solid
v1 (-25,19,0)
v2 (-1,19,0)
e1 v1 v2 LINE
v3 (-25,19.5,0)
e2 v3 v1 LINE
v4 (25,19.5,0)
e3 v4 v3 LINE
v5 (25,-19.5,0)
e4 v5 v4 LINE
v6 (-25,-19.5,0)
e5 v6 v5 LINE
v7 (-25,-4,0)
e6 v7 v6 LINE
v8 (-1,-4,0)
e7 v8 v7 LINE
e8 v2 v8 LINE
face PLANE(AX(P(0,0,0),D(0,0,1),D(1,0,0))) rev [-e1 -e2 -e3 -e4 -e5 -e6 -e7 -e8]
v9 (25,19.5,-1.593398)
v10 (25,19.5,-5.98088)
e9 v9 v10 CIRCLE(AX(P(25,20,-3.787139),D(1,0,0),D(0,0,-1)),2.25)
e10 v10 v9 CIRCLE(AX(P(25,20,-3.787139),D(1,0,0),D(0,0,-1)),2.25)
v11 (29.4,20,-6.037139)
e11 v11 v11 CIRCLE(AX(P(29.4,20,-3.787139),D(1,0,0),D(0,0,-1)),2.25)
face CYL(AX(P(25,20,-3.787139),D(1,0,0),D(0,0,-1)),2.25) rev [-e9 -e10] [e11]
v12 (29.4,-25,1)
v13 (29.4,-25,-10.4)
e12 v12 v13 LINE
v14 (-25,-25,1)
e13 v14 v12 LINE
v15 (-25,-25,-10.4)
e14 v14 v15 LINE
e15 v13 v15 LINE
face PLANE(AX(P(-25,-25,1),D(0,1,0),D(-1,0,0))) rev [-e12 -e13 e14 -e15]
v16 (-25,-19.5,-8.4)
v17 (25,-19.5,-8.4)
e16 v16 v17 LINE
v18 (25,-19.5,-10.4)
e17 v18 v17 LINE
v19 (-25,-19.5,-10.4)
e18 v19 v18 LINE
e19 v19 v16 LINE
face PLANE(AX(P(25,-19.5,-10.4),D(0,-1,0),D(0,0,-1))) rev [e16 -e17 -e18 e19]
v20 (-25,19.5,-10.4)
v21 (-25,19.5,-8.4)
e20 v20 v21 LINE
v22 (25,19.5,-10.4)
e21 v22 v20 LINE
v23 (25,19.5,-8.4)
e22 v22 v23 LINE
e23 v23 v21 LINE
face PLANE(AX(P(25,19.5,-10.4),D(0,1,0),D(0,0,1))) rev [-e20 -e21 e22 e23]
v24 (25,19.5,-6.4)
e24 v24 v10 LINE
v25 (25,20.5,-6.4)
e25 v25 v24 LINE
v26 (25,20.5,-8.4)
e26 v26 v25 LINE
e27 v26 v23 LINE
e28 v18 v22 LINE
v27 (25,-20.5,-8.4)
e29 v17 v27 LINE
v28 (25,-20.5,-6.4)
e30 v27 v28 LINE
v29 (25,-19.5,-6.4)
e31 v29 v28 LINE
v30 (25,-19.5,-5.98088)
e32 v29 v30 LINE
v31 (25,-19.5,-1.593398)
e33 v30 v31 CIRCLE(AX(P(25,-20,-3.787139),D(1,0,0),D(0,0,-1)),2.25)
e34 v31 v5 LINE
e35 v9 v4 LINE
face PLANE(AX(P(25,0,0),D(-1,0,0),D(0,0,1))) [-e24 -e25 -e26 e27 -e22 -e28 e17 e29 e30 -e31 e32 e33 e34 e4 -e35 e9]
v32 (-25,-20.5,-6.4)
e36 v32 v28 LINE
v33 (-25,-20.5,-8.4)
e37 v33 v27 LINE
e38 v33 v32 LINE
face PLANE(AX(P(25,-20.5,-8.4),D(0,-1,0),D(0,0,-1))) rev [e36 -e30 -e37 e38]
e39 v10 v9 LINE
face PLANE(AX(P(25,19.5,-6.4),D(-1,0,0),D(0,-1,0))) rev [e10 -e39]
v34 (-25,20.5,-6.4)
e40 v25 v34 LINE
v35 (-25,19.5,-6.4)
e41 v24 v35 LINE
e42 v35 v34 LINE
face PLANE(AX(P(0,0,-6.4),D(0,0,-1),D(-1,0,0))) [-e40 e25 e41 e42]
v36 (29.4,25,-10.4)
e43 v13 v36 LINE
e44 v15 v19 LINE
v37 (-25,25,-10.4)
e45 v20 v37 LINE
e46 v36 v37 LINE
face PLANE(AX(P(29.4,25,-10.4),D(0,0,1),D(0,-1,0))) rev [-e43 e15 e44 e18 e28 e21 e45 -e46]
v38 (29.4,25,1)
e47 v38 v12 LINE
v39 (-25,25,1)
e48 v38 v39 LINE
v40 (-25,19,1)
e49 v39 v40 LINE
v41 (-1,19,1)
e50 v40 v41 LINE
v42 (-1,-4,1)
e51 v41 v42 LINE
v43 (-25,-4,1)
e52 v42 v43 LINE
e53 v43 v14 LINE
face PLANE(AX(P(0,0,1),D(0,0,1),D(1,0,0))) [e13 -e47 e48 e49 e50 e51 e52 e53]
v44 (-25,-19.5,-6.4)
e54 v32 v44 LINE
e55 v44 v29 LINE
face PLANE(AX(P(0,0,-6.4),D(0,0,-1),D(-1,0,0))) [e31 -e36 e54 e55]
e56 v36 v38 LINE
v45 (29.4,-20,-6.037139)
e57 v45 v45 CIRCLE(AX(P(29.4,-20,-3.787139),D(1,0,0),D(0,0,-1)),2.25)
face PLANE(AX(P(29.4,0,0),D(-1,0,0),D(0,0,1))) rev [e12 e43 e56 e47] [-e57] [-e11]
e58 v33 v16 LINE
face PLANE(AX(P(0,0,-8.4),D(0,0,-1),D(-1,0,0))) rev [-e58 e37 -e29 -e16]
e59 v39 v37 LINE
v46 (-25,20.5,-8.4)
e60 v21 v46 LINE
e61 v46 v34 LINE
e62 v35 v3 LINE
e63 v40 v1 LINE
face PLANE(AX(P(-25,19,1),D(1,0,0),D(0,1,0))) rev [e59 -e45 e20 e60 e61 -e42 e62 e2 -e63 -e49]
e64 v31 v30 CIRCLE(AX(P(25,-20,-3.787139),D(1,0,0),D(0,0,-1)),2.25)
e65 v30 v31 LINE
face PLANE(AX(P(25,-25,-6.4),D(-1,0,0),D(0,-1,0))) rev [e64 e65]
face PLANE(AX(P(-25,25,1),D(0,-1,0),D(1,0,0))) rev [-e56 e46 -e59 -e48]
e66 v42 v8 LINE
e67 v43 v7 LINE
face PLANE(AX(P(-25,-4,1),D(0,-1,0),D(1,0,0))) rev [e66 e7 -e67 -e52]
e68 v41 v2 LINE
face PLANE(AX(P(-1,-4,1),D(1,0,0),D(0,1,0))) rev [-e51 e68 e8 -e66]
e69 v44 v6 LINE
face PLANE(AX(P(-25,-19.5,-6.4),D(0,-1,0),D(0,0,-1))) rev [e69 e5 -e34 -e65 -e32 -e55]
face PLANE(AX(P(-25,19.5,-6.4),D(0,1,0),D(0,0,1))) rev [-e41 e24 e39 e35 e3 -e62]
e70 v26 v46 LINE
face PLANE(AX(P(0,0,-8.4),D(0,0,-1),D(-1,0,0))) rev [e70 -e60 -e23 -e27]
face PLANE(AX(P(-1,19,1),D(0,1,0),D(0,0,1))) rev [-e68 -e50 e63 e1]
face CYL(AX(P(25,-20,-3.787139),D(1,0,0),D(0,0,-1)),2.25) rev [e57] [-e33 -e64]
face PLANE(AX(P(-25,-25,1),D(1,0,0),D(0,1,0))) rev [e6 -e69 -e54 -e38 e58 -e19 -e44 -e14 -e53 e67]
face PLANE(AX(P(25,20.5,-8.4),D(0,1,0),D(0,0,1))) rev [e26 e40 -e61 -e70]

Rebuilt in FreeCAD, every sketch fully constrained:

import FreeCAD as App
import Part
import Sketcher

V = App.Vector
Q = App.Units.Quantity

doc = App.newDocument("Part")
body = doc.addObject("PartDesign::Body", "Body")

# Sketch on XY plane
sketch1 = body.newObject("Sketcher::SketchObject", "Sketch")
sketch1.AttachmentSupport = (doc.getObject("XY_Plane"), [""])
sketch1.MapMode = "FlatFace"
sketch1.addGeometry([
    Part.LineSegment(V(-1, -4, 0), V(-25, -4, 0)),  # 0
    Part.LineSegment(V(-25, -4, 0), V(-25, -25, 0)),  # 1
    Part.LineSegment(V(-25, -25, 0), V(25, -25, 0)),  # 2
    Part.LineSegment(V(25, -25, 0), V(25, 25, 0)),  # 3
    Part.LineSegment(V(25, 25, 0), V(-25, 25, 0)),  # 4
    Part.LineSegment(V(-25, 25, 0), V(-25, 19, 0)),  # 5
    Part.LineSegment(V(-25, 19, 0), V(-1, 19, 0)),  # 6
    Part.LineSegment(V(-1, 19, 0), V(-1, -4, 0)),  # 7
], False)
sketch1.addConstraint([
    Sketcher.Constraint("Coincident", 0, 2, 1, 1),
    Sketcher.Constraint("Coincident", 1, 2, 2, 1),
    Sketcher.Constraint("Coincident", 2, 2, 3, 1),
    Sketcher.Constraint("Coincident", 3, 2, 4, 1),
    Sketcher.Constraint("Coincident", 4, 2, 5, 1),
    Sketcher.Constraint("Coincident", 5, 2, 6, 1),
    Sketcher.Constraint("Coincident", 6, 2, 7, 1),
    Sketcher.Constraint("Coincident", 7, 2, 0, 1),
    Sketcher.Constraint("Horizontal", 0),
    Sketcher.Constraint("Vertical", 1),
    Sketcher.Constraint("Horizontal", 2),
    Sketcher.Constraint("Vertical", 3),
    Sketcher.Constraint("Horizontal", 4),
    Sketcher.Constraint("Vertical", 5),
    Sketcher.Constraint("Horizontal", 6),
    Sketcher.Constraint("Vertical", 7),
    Sketcher.Constraint("Symmetric", 1, 2, 3, 2, -1, 1),
    Sketcher.Constraint("Vertical", 1, 2, 4, 2),
    Sketcher.Constraint("Equal", 4, 3),
    Sketcher.Constraint("DistanceX", 0, 2, 0, 1, Q("24 mm")),
    Sketcher.Constraint("DistanceX", 2, 1, 2, 2, Q("50 mm")),
    Sketcher.Constraint("DistanceY", 1, 2, 1, 1, Q("21 mm")),
    Sketcher.Constraint("DistanceY", 5, 2, 5, 1, Q("6 mm")),
])
pad1 = body.newObject("PartDesign::Pad", "Pad")
pad1.Profile = sketch1
pad1.Length = 1

# Sketch on YZ plane
sketch2 = body.newObject("Sketcher::SketchObject", "Sketch001")
sketch2.AttachmentSupport = (doc.getObject("YZ_Plane"), [""])
sketch2.MapMode = "FlatFace"
sketch2.AttachmentOffset = App.Placement(V(0, 0, 25), App.Rotation())
sketch2.addGeometry([
    Part.LineSegment(V(-25, 1, 0), V(-25, -10.4, 0)),
    Part.LineSegment(V(-25, -10.4, 0), V(25, -10.4, 0)),
    Part.LineSegment(V(25, -10.4, 0), V(25, 1, 0)),
    Part.LineSegment(V(25, 1, 0), V(-25, 1, 0)),
], False)
sketch2.addConstraint([
    Sketcher.Constraint("Coincident", 0, 2, 1, 1),
    Sketcher.Constraint("Coincident", 1, 2, 2, 1),
    Sketcher.Constraint("Coincident", 2, 2, 3, 1),
    Sketcher.Constraint("Coincident", 3, 2, 0, 1),
    Sketcher.Constraint("Vertical", 0),
    Sketcher.Constraint("Horizontal", 1),
    Sketcher.Constraint("Vertical", 2),
    Sketcher.Constraint("Horizontal", 3),
    Sketcher.Constraint("DistanceX", 1, 1, 1, 2, Q("50 mm")),
    Sketcher.Constraint("DistanceY", 0, 2, 0, 1, Q("11.4 mm")),
    Sketcher.Constraint("DistanceX", 0, 2, -1, 1, Q("25 mm")),
    Sketcher.Constraint("DistanceY", -1, 1, 2, 2, Q("1 mm")),
])
pad2 = body.newObject("PartDesign::Pad", "Pad001")
pad2.Profile = sketch2
pad2.Length = 4.4

# Sketch on YZ plane
sketch3 = body.newObject("Sketcher::SketchObject", "Sketch002")
sketch3.AttachmentSupport = (doc.getObject("YZ_Plane"), [""])
sketch3.MapMode = "FlatFace"
sketch3.AttachmentOffset = App.Placement(V(0, 0, 29.4), App.Rotation())
sketch3.addGeometry([
    Part.Circle(V(-20, -3.787139, 0), V(0, 0, 1), 2.25),
    Part.Circle(V(20, -3.787139, 0), V(0, 0, 1), 2.25),
], False)
sketch3.addConstraint([
    Sketcher.Constraint("Equal", 0, 1),
    Sketcher.Constraint("Symmetric", 0, 3, 1, 3, -2),
    Sketcher.Constraint("Diameter", 0, Q("4.5 mm")),
    Sketcher.Constraint("DistanceX", 0, 3, -1, 1, Q("20 mm")),
    Sketcher.Constraint("DistanceY", 0, 3, -1, 1, Q("3.787139 mm")),
])
pocket1 = body.newObject("PartDesign::Pocket", "Pocket")
pocket1.Profile = sketch3
pocket1.Length = 4.4

# Sketch on XY plane
sketch4 = body.newObject("Sketcher::SketchObject", "Sketch003")
sketch4.AttachmentSupport = (doc.getObject("XY_Plane"), [""])
sketch4.MapMode = "FlatFace"
sketch4.addGeometry([
    Part.LineSegment(V(-25, 19.5, 0), V(-25, 25, 0)),  # 0
    Part.LineSegment(V(-25, 25, 0), V(25, 25, 0)),  # 1
    Part.LineSegment(V(25, 25, 0), V(25, 19.5, 0)),  # 2
    Part.LineSegment(V(25, 19.5, 0), V(-25, 19.5, 0)),  # 3
    Part.LineSegment(V(-25, -25, 0), V(-25, -19.5, 0)),  # 4
    Part.LineSegment(V(-25, -19.5, 0), V(25, -19.5, 0)),  # 5
    Part.LineSegment(V(25, -19.5, 0), V(25, -25, 0)),  # 6
    Part.LineSegment(V(25, -25, 0), V(-25, -25, 0)),  # 7
], False)
sketch4.addConstraint([
    Sketcher.Constraint("Coincident", 0, 2, 1, 1),
    Sketcher.Constraint("Coincident", 1, 2, 2, 1),
    Sketcher.Constraint("Coincident", 2, 2, 3, 1),
    Sketcher.Constraint("Coincident", 3, 2, 0, 1),
    Sketcher.Constraint("Coincident", 4, 2, 5, 1),
    Sketcher.Constraint("Coincident", 5, 2, 6, 1),
    Sketcher.Constraint("Coincident", 6, 2, 7, 1),
    Sketcher.Constraint("Coincident", 7, 2, 4, 1),
    Sketcher.Constraint("Vertical", 0),
    Sketcher.Constraint("Horizontal", 1),
    Sketcher.Constraint("Vertical", 2),
    Sketcher.Constraint("Horizontal", 3),
    Sketcher.Constraint("Vertical", 4),
    Sketcher.Constraint("Horizontal", 5),
    Sketcher.Constraint("Vertical", 6),
    Sketcher.Constraint("Horizontal", 7),
    Sketcher.Constraint("Symmetric", 2, 2, 4, 2, -1, 1),
    Sketcher.Constraint("Symmetric", 0, 2, 6, 2, -1, 1),
    Sketcher.Constraint("Vertical", 3, 2, 4, 2),
    Sketcher.Constraint("DistanceX", 1, 1, 1, 2, Q("50 mm")),
    Sketcher.Constraint("DistanceY", 0, 1, 0, 2, Q("5.5 mm")),
    Sketcher.Constraint("DistanceY", -1, 1, 0, 2, Q("25 mm")),
])
pad3 = body.newObject("PartDesign::Pad", "Pad002")
pad3.Profile = sketch4
pad3.Length = 6.4
pad3.Reversed = True

# Sketch on XY plane
sketch5 = body.newObject("Sketcher::SketchObject", "Sketch004")
sketch5.AttachmentSupport = (doc.getObject("XY_Plane"), [""])
sketch5.MapMode = "FlatFace"
sketch5.AttachmentOffset = App.Placement(V(0, 0, -6.4), App.Rotation())
sketch5.addGeometry([
    Part.LineSegment(V(-25, -25, 0), V(-25, -20.5, 0)),  # 0
    Part.LineSegment(V(-25, -20.5, 0), V(25, -20.5, 0)),  # 1
    Part.LineSegment(V(25, -20.5, 0), V(25, -25, 0)),  # 2
    Part.LineSegment(V(25, -25, 0), V(-25, -25, 0)),  # 3
    Part.LineSegment(V(-25, 20.5, 0), V(-25, 25, 0)),  # 4
    Part.LineSegment(V(-25, 25, 0), V(25, 25, 0)),  # 5
    Part.LineSegment(V(25, 25, 0), V(25, 20.5, 0)),  # 6
    Part.LineSegment(V(25, 20.5, 0), V(-25, 20.5, 0)),  # 7
], False)
sketch5.addConstraint([
    Sketcher.Constraint("Coincident", 0, 2, 1, 1),
    Sketcher.Constraint("Coincident", 1, 2, 2, 1),
    Sketcher.Constraint("Coincident", 2, 2, 3, 1),
    Sketcher.Constraint("Coincident", 3, 2, 0, 1),
    Sketcher.Constraint("Coincident", 4, 2, 5, 1),
    Sketcher.Constraint("Coincident", 5, 2, 6, 1),
    Sketcher.Constraint("Coincident", 6, 2, 7, 1),
    Sketcher.Constraint("Coincident", 7, 2, 4, 1),
    Sketcher.Constraint("Vertical", 0),
    Sketcher.Constraint("Horizontal", 1),
    Sketcher.Constraint("Vertical", 2),
    Sketcher.Constraint("Horizontal", 3),
    Sketcher.Constraint("Vertical", 4),
    Sketcher.Constraint("Horizontal", 5),
    Sketcher.Constraint("Vertical", 6),
    Sketcher.Constraint("Horizontal", 7),
    Sketcher.Constraint("Symmetric", 2, 2, 4, 2, -1, 1),
    Sketcher.Constraint("Symmetric", 0, 2, 6, 2, -1, 1),
    Sketcher.Constraint("Vertical", 3, 2, 4, 2),
    Sketcher.Constraint("DistanceX", 1, 1, 1, 2, Q("50 mm")),
    Sketcher.Constraint("DistanceY", 0, 1, 0, 2, Q("4.5 mm")),
    Sketcher.Constraint("DistanceY", 2, 2, -1, 1, Q("25 mm")),
])
pad4 = body.newObject("PartDesign::Pad", "Pad003")
pad4.Profile = sketch5
pad4.Length = 2
pad4.Reversed = True

# Sketch on XY plane
sketch6 = body.newObject("Sketcher::SketchObject", "Sketch005")
sketch6.AttachmentSupport = (doc.getObject("XY_Plane"), [""])
sketch6.MapMode = "FlatFace"
sketch6.AttachmentOffset = App.Placement(V(0, 0, -8.4), App.Rotation())
sketch6.addGeometry([
    Part.LineSegment(V(-25, -25, 0), V(-25, -19.5, 0)),  # 0
    Part.LineSegment(V(-25, -19.5, 0), V(25, -19.5, 0)),  # 1
    Part.LineSegment(V(25, -19.5, 0), V(25, -25, 0)),  # 2
    Part.LineSegment(V(25, -25, 0), V(-25, -25, 0)),  # 3
    Part.LineSegment(V(-25, 19.5, 0), V(-25, 25, 0)),  # 4
    Part.LineSegment(V(-25, 25, 0), V(25, 25, 0)),  # 5
    Part.LineSegment(V(25, 25, 0), V(25, 19.5, 0)),  # 6
    Part.LineSegment(V(25, 19.5, 0), V(-25, 19.5, 0)),  # 7
], False)
sketch6.addConstraint([
    Sketcher.Constraint("Coincident", 0, 2, 1, 1),
    Sketcher.Constraint("Coincident", 1, 2, 2, 1),
    Sketcher.Constraint("Coincident", 2, 2, 3, 1),
    Sketcher.Constraint("Coincident", 3, 2, 0, 1),
    Sketcher.Constraint("Coincident", 4, 2, 5, 1),
    Sketcher.Constraint("Coincident", 5, 2, 6, 1),
    Sketcher.Constraint("Coincident", 6, 2, 7, 1),
    Sketcher.Constraint("Coincident", 7, 2, 4, 1),
    Sketcher.Constraint("Vertical", 0),
    Sketcher.Constraint("Horizontal", 1),
    Sketcher.Constraint("Vertical", 2),
    Sketcher.Constraint("Horizontal", 3),
    Sketcher.Constraint("Vertical", 4),
    Sketcher.Constraint("Horizontal", 5),
    Sketcher.Constraint("Vertical", 6),
    Sketcher.Constraint("Horizontal", 7),
    Sketcher.Constraint("Symmetric", 2, 2, 4, 2, -1, 1),
    Sketcher.Constraint("Symmetric", 0, 2, 6, 2, -1, 1),
    Sketcher.Constraint("Vertical", 3, 2, 4, 2),
    Sketcher.Constraint("DistanceX", 1, 1, 1, 2, Q("50 mm")),
    Sketcher.Constraint("DistanceY", 0, 1, 0, 2, Q("5.5 mm")),
    Sketcher.Constraint("DistanceY", 2, 2, -1, 1, Q("25 mm")),
])
pad5 = body.newObject("PartDesign::Pad", "Pad004")
pad5.Profile = sketch6
pad5.Length = 2
pad5.Reversed = True

doc.recompute()
